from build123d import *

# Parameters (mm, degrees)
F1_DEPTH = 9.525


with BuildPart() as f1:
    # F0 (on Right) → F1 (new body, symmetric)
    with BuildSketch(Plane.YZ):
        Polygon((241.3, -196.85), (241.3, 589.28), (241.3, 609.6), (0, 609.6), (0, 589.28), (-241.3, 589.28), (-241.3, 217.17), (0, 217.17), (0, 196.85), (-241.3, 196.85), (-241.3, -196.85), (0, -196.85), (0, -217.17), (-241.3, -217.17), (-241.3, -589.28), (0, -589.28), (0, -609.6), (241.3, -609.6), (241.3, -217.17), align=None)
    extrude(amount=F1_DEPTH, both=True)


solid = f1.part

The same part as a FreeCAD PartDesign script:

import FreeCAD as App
import Part
import Sketcher
from FreeCAD import Vector
Q = App.Units.Quantity

doc = App.newDocument("Part")
body = doc.addObject("PartDesign::Body", "Body")

# Sketch on YZ plane
sketch1 = body.newObject("Sketcher::SketchObject", "Sketch")
sketch1.AttachmentSupport = (doc.getObject("YZ_Plane"), [""])
sketch1.MapMode = "FlatFace"
sketch1.addGeometry(Part.LineSegment(Vector(241, 610, 0), Vector(0, 610, 0)), False)
sketch1.addGeometry(Part.LineSegment(Vector(0, 610, 0), Vector(0, 589, 0)), False)
sketch1.addGeometry(Part.LineSegment(Vector(0, 589, 0), Vector(-241, 589, 0)), False)
sketch1.addGeometry(Part.LineSegment(Vector(-241, 589, 0), Vector(-241, 217, 0)), False)
sketch1.addGeometry(Part.LineSegment(Vector(-241, 217, 0), Vector(0, 217, 0)), False)
sketch1.addGeometry(Part.LineSegment(Vector(0, 217, 0), Vector(0, 197, 0)), False)
sketch1.addGeometry(Part.LineSegment(Vector(0, 197, 0), Vector(-241, 197, 0)), False)
sketch1.addGeometry(Part.LineSegment(Vector(-241, 197, 0), Vector(-241, -197, 0)), False)
sketch1.addGeometry(Part.LineSegment(Vector(-241, -197, 0), Vector(0, -197, 0)), False)
sketch1.addGeometry(Part.LineSegment(Vector(0, -197, 0), Vector(0, -217, 0)), False)
sketch1.addGeometry(Part.LineSegment(Vector(0, -217, 0), Vector(-241, -217, 0)), False)
sketch1.addGeometry(Part.LineSegment(Vector(-241, -217, 0), Vector(-241, -589, 0)), False)
sketch1.addGeometry(Part.LineSegment(Vector(-241, -589, 0), Vector(0, -589, 0)), False)
sketch1.addGeometry(Part.LineSegment(Vector(0, -589, 0), Vector(0, -610, 0)), False)
sketch1.addGeometry(Part.LineSegment(Vector(0, -610, 0), Vector(241, -610, 0)), False)
sketch1.addGeometry(Part.LineSegment(Vector(241, -610, 0), Vector(241, 610, 0)), False)
sketch1.addConstraint(Sketcher.Constraint("Coincident", 0, 2, 1, 1))
sketch1.addConstraint(Sketcher.Constraint("Coincident", 1, 2, 2, 1))
sketch1.addConstraint(Sketcher.Constraint("Coincident", 2, 2, 3, 1))
sketch1.addConstraint(Sketcher.Constraint("Coincident", 3, 2, 4, 1))
sketch1.addConstraint(Sketcher.Constraint("Coincident", 4, 2, 5, 1))
sketch1.addConstraint(Sketcher.Constraint("Coincident", 5, 2, 6, 1))
sketch1.addConstraint(Sketcher.Constraint("Coincident", 6, 2, 7, 1))
sketch1.addConstraint(Sketcher.Constraint("Coincident", 7, 2, 8, 1))
sketch1.addConstraint(Sketcher.Constraint("Coincident", 8, 2, 9, 1))
sketch1.addConstraint(Sketcher.Constraint("Coincident", 9, 2, 10, 1))
sketch1.addConstraint(Sketcher.Constraint("Coincident", 10, 2, 11, 1))
sketch1.addConstraint(Sketcher.Constraint("Coincident", 11, 2, 12, 1))
sketch1.addConstraint(Sketcher.Constraint("Coincident", 12, 2, 13, 1))
sketch1.addConstraint(Sketcher.Constraint("Coincident", 13, 2, 14, 1))
sketch1.addConstraint(Sketcher.Constraint("Coincident", 14, 2, 15, 1))
sketch1.addConstraint(Sketcher.Constraint("Coincident", 15, 2, 0, 1))
sketch1.addConstraint(Sketcher.Constraint("Horizontal", 0))
sketch1.addConstraint(Sketcher.Constraint("Vertical", 1))
sketch1.addConstraint(Sketcher.Constraint("Horizontal", 2))
sketch1.addConstraint(Sketcher.Constraint("Vertical", 3))
sketch1.addConstraint(Sketcher.Constraint("Horizontal", 4))
sketch1.addConstraint(Sketcher.Constraint("Vertical", 5))
sketch1.addConstraint(Sketcher.Constraint("Horizontal", 6))
sketch1.addConstraint(Sketcher.Constraint("Vertical", 7))
sketch1.addConstraint(Sketcher.Constraint("Horizontal", 8))
sketch1.addConstraint(Sketcher.Constraint("Vertical", 9))
sketch1.addConstraint(Sketcher.Constraint("Horizontal", 10))
sketch1.addConstraint(Sketcher.Constraint("Vertical", 11))
sketch1.addConstraint(Sketcher.Constraint("Horizontal", 12))
sketch1.addConstraint(Sketcher.Constraint("Vertical", 13))
sketch1.addConstraint(Sketcher.Constraint("Horizontal", 14))
sketch1.addConstraint(Sketcher.Constraint("Vertical", 15))
sketch1.addConstraint(Sketcher.Constraint("Symmetric", 5, 2, 8, 2, -1, 1))
sketch1.addConstraint(Sketcher.Constraint("Symmetric", 1, 2, 12, 2, -1, 1))
sketch1.addConstraint(Sketcher.Constraint("Symmetric", 4, 2, 9, 2, -1))
sketch1.addConstraint(Sketcher.Constraint("Symmetric", 0, 2, 13, 2, -1))
sketch1.addConstraint(Sketcher.Constraint("Vertical", 3, 2, 6, 2))
sketch1.addConstraint(Sketcher.Constraint("Vertical", 7, 2, 10, 2))
sketch1.addConstraint(Sketcher.Constraint("Equal", 0, 2))
sketch1.addConstraint(Sketcher.Constraint("Equal", 1, 5))
sketch1.addConstraint(Sketcher.Constraint("DistanceY", 15, 1, 15, 2, Q("48 in")))
sketch1.addConstraint(Sketcher.Constraint("DistanceX", 0, 2, 0, 1, Q("9.5 in")))
sketch1.addConstraint(Sketcher.Constraint("DistanceY", 1, 2, 1, 1, Q("0.8 in")))
sketch1.addConstraint(Sketcher.Constraint("DistanceY", 7, 2, 7, 1, Q("15.5 in")))
pad1 = body.newObject("PartDesign::Pad", "Pad")
pad1.Profile = sketch1
pad1.Length = Q("0.75 in")
pad1.Midplane = True

doc.recompute()
